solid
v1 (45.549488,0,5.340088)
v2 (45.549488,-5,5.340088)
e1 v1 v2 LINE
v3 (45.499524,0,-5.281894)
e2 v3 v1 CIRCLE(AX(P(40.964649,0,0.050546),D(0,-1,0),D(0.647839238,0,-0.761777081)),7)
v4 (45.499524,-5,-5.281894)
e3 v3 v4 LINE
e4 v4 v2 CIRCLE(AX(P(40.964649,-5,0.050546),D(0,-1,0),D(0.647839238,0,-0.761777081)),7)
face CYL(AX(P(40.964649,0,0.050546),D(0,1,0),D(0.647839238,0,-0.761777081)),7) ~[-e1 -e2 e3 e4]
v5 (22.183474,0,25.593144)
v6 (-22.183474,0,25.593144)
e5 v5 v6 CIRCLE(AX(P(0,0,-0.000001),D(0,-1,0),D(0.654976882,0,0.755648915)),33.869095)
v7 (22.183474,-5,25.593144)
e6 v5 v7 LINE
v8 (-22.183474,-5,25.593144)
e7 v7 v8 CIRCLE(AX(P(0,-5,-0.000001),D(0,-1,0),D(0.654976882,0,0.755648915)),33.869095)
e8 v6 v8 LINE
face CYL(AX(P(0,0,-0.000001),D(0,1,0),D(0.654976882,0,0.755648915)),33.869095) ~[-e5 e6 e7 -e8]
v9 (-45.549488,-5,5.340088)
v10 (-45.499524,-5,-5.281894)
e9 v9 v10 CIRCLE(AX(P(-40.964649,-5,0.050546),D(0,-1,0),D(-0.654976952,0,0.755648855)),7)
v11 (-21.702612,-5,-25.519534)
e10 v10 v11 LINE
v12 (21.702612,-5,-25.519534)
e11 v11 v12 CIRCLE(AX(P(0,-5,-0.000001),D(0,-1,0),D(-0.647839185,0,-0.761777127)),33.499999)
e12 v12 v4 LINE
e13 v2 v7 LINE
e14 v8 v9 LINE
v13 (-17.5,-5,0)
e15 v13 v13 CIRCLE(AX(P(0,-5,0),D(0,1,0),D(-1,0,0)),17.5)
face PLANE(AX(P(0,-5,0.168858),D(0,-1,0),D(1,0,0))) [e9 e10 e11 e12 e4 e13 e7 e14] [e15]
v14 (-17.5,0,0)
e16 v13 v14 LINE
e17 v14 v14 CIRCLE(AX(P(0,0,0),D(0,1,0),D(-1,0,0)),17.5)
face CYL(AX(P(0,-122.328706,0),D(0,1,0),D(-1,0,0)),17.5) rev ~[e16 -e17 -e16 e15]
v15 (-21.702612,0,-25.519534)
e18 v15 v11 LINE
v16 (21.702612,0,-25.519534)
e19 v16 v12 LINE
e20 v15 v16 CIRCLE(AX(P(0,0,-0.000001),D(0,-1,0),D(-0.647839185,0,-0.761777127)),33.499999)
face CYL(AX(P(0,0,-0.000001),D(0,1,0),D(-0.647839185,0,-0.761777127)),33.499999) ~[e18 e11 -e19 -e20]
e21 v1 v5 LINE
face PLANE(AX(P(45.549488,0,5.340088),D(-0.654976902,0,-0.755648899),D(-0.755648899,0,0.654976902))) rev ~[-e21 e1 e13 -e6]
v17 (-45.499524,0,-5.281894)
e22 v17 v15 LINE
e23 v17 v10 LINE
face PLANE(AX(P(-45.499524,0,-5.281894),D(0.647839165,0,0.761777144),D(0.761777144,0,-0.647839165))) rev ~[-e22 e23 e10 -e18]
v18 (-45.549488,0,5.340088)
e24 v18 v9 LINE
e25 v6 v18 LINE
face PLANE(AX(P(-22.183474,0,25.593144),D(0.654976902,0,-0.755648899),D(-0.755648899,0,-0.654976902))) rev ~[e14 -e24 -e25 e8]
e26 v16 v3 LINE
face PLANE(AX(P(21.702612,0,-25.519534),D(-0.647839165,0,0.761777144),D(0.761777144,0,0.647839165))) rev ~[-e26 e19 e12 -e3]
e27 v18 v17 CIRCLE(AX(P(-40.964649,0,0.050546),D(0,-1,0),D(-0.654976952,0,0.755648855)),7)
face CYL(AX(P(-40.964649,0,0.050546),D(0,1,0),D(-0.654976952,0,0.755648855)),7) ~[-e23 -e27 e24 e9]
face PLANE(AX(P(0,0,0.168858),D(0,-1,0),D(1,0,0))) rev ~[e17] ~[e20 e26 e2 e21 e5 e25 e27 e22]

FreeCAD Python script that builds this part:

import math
import FreeCAD as App
import Part
import Sketcher
Q = App.Units.Quantity

doc = App.newDocument("Part")
params = doc.addObject("Spreadsheet::Sheet", "Params")
for row, (alias, value) in enumerate([
    ("sketch1_radius", "7 mm"),
    ("sketch1_radius2", "33.499999 mm"),
    ("pad1_length", "5 mm"),
    ("sketch2_diameter", "35 mm"),
    ("hole_diameter", "35 mm"),
], start=1):
    params.set(f"A{row}", alias)
    params.set(f"B{row}", "=" + value)
    params.setAlias(f"B{row}", alias)

body = doc.addObject("PartDesign::Body", "Body")

# Sketch on XZ plane
sketch1 = doc.addObject("Sketcher::SketchObject", "Sketch")
body.addObject(sketch1)
sketch1.AttachmentSupport = (doc.XZ_Plane, [""])
sketch1.MapMode = "FlatFace"
sketch1.addGeometry(Part.LineSegment(App.Vector(-22, 26, 0), App.Vector(-46, 5, 0)), False)
sketch1.addGeometry(Part.ArcOfCircle(Part.Circle(App.Vector(-41, 0, 0), App.Vector(0, 0, 1), 7), math.radians(131), math.radians(230)), False)
sketch1.addGeometry(Part.LineSegment(App.Vector(-45, -5, 0), App.Vector(-22, -26, 0)), False)
sketch1.addGeometry(Part.ArcOfCircle(Part.Circle(App.Vector(0, 0, 0), App.Vector(0, 0, 1), 33), math.radians(-130), math.radians(-50)), False)
sketch1.addGeometry(Part.LineSegment(App.Vector(22, -26, 0), App.Vector(45, -5, 0)), False)
sketch1.addGeometry(Part.ArcOfCircle(Part.Circle(App.Vector(41, 0, 0), App.Vector(0, 0, 1), 7), math.radians(-50), math.radians(49)), False)
sketch1.addGeometry(Part.LineSegment(App.Vector(46, 5, 0), App.Vector(22, 26, 0)), False)
sketch1.addGeometry(Part.ArcOfCircle(Part.Circle(App.Vector(0, 0, 0), App.Vector(0, 0, 1), 34), math.radians(49), math.radians(131)), False)
sketch1.addConstraint(Sketcher.Constraint("Tangent", 0, 2, 1, 1))
sketch1.addConstraint(Sketcher.Constraint("Tangent", 1, 2, 2, 1))
sketch1.addConstraint(Sketcher.Constraint("Tangent", 2, 2, 3, 1))
sketch1.addConstraint(Sketcher.Constraint("Tangent", 3, 2, 4, 1))
sketch1.addConstraint(Sketcher.Constraint("Tangent", 4, 2, 5, 1))
sketch1.addConstraint(Sketcher.Constraint("Tangent", 5, 2, 6, 1))
sketch1.addConstraint(Sketcher.Constraint("Tangent", 6, 2, 7, 1))
sketch1.addConstraint(Sketcher.Constraint("Tangent", 7, 2, 0, 1))
sketch1.addConstraint(Sketcher.Constraint("Coincident", 3, 3, -1, 1))
sketch1.addConstraint(Sketcher.Constraint("Coincident", 7, 3, -1, 1))
sketch1.addConstraint(Sketcher.Constraint("Equal", 1, 5))
sketch1.addConstraint(Sketcher.Constraint("Symmetric", 1, 3, 5, 3, -2))
sketch1.addConstraint(Sketcher.Constraint("Radius", 1, Q("7 mm")))
sketch1.addConstraint(Sketcher.Constraint("Radius", 3, Q("33.499999 mm")))
sketch1.addConstraint(Sketcher.Constraint("Radius", 7, Q("33.869095 mm")))
sketch1.addConstraint(Sketcher.Constraint("DistanceX", 1, 3, 5, 3, Q("81.929298 mm")))
sketch1.addConstraint(Sketcher.Constraint("DistanceY", 5, 3, 6, 2, Q("25.542598 mm")))
sketch1.setExpression("Constraints[12]", "Params.sketch1_radius")
sketch1.setExpression("Constraints[13]", "Params.sketch1_radius2")
pad1 = doc.addObject("PartDesign::Pad", "Pad")
body.addObject(pad1)
pad1.Profile = sketch1
pad1.setExpression("Length", "Params.pad1_length")

# Sketch on XZ plane
sketch2 = doc.addObject("Sketcher::SketchObject", "Sketch001")
body.addObject(sketch2)
sketch2.AttachmentSupport = (doc.XZ_Plane, [""])
sketch2.MapMode = "FlatFace"
sketch2.AttachmentOffset = App.Placement(App.Vector(0, 0, 5), App.Rotation())
sketch2.addGeometry(Part.Circle(App.Vector(0, 0, 0), App.Vector(0, 0, 1), 18), False)
sketch2.addConstraint(Sketcher.Constraint("Coincident", 0, 3, -1, 1))
sketch2.addConstraint(Sketcher.Constraint("Diameter", 0, Q("35 mm")))
sketch2.setExpression("Constraints[1]", "Params.sketch2_diameter")
doc.recompute()
hole = doc.addObject("PartDesign::Hole", "Hole")
body.addObject(hole)
hole.Profile = sketch2
hole.ThreadType = "None"
hole.setExpression("Diameter", "Params.hole_diameter")
hole.DepthType = "ThroughAll"

doc.recompute()
